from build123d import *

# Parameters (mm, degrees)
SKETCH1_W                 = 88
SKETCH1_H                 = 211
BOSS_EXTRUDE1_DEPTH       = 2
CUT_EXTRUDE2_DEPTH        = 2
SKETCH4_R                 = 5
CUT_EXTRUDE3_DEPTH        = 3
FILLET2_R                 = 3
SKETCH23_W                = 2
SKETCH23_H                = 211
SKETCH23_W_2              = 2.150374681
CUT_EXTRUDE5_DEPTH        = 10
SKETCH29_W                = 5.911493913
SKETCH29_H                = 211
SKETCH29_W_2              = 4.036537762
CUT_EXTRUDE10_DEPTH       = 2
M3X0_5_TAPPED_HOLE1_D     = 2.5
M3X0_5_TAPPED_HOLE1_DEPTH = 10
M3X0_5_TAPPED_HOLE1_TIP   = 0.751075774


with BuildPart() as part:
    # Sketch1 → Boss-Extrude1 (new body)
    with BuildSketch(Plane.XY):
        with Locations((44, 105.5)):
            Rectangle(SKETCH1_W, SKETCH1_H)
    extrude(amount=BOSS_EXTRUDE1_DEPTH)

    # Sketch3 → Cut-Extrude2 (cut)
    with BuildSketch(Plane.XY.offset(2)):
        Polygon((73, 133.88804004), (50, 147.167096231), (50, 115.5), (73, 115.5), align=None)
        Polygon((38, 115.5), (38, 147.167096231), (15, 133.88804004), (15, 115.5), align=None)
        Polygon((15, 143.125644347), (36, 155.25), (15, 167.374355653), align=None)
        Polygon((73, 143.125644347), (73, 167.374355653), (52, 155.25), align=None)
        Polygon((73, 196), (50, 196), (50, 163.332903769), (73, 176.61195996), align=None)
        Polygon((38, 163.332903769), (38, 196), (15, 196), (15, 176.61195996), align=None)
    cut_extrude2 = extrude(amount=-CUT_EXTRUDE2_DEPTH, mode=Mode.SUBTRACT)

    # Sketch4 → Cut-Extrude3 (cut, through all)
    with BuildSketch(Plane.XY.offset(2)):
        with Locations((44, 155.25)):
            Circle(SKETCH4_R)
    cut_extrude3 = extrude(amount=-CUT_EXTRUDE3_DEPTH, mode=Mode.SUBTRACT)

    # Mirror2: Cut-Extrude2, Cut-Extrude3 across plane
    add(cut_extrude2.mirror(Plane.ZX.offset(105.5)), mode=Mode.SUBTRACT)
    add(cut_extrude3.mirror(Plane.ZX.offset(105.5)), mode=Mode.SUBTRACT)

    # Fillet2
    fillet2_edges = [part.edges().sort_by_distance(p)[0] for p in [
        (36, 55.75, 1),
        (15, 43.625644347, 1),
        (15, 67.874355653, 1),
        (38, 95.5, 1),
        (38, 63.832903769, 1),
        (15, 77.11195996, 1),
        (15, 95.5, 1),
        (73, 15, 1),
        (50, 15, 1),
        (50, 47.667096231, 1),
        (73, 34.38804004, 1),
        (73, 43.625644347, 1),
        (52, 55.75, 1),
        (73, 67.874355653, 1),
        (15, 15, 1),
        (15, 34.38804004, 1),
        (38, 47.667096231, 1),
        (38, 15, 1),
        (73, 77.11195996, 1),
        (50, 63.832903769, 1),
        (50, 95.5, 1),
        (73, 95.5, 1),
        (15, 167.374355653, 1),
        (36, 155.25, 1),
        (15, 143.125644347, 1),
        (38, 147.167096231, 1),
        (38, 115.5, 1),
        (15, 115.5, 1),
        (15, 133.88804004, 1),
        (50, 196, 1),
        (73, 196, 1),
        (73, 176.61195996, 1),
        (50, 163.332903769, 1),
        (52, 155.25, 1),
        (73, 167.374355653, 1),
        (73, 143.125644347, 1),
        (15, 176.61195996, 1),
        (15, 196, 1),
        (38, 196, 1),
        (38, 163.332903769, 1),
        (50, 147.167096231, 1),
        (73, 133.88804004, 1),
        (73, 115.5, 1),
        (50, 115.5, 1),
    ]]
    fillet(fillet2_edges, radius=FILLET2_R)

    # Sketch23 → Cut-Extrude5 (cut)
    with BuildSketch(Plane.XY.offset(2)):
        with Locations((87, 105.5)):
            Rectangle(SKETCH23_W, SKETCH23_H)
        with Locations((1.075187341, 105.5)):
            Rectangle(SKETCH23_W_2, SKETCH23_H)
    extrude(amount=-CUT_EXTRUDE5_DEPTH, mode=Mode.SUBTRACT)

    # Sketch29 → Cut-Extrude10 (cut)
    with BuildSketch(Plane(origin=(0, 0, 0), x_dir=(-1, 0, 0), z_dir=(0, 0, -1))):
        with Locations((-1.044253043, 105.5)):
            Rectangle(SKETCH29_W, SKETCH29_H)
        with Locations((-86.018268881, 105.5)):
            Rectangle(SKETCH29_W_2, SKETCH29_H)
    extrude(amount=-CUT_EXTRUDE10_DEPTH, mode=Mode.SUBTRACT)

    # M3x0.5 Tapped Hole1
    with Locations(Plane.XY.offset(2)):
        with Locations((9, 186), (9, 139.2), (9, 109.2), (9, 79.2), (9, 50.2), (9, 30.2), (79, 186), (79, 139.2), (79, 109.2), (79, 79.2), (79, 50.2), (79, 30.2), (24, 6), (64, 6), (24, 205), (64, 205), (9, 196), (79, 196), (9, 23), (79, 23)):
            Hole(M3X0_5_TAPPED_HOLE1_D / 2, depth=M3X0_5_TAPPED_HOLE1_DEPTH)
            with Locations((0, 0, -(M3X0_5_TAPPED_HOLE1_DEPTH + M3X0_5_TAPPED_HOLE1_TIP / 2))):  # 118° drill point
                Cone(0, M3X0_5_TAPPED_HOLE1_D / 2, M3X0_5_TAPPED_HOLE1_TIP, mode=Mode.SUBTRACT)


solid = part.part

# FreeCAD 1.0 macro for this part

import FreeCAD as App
import Part
import Sketcher

V = App.Vector
Q = App.Units.Quantity


def edges_at(feature, points):
    """Names of the edges that pass closest to the given points."""
    edges = feature.Shape.Edges
    near = lambda p: min(range(len(edges)), key=lambda i: edges[i].distToShape(Part.Vertex(*p))[0])
    return sorted({f"Edge{near(p) + 1}" for p in points})

doc = App.newDocument("Part")
params = doc.addObject("Spreadsheet::Sheet", "Params")
for row, (alias, value) in enumerate([
    ("sketch1_width", "88 mm"),
    ("sketch1_height", "211 mm"),
    ("pad1_length", "2 mm"),
    ("sketch2_width", "23 mm"),
    ("pocket1_length", "2 mm"),
    ("sketch3_diameter", "10 mm"),
    ("fillet_radius", "3 mm"),
    ("sketch4_width", "2 mm"),
    ("sketch4_height", "211 mm"),
    ("pocket3_length", "10 mm"),
    ("sketch5_height", "211 mm"),
    ("pocket4_length", "2 mm"),
    ("sketch6_diameter", "2.5 mm"),
    ("hole_diameter", "2.5 mm"),
    ("hole_depth", "10 mm"),
], start=1):
    params.set(f"A{row}", alias)
    params.set(f"B{row}", "=" + value)
    params.setAlias(f"B{row}", alias)

body = doc.addObject("PartDesign::Body", "Body")

# Sketch on XY plane
sketch1 = doc.addObject("Sketcher::SketchObject", "Sketch")
body.addObject(sketch1)
sketch1.AttachmentSupport = (doc.XY_Plane, [""])
sketch1.MapMode = "FlatFace"
sketch1.addGeometry(Part.LineSegment(V(0, 211, 0), V(0, 0, 0)), False)
sketch1.addGeometry(Part.LineSegment(V(0, 0, 0), V(88, 0, 0)), False)
sketch1.addGeometry(Part.LineSegment(V(88, 0, 0), V(88, 211, 0)), False)
sketch1.addGeometry(Part.LineSegment(V(88, 211, 0), V(0, 211, 0)), False)
sketch1.addConstraint(Sketcher.Constraint("Coincident", 0, 2, 1, 1))
sketch1.addConstraint(Sketcher.Constraint("Coincident", 1, 2, 2, 1))
sketch1.addConstraint(Sketcher.Constraint("Coincident", 2, 2, 3, 1))
sketch1.addConstraint(Sketcher.Constraint("Coincident", 3, 2, 0, 1))
sketch1.addConstraint(Sketcher.Constraint("Vertical", 0))
sketch1.addConstraint(Sketcher.Constraint("Horizontal", 1))
sketch1.addConstraint(Sketcher.Constraint("Vertical", 2))
sketch1.addConstraint(Sketcher.Constraint("Horizontal", 3))
sketch1.addConstraint(Sketcher.Constraint("Coincident", 0, 2, -1, 1))
sketch1.addConstraint(Sketcher.Constraint("DistanceX", 1, 1, 1, 2, 88.0))
sketch1.addConstraint(Sketcher.Constraint("DistanceY", 0, 2, 0, 1, 211.0))
sketch1.setExpression("Constraints[9]", "Params.sketch1_width")
sketch1.setExpression("Constraints[10]", "Params.sketch1_height")
pad1 = doc.addObject("PartDesign::Pad", "Pad")
body.addObject(pad1)
pad1.Profile = sketch1
pad1.setExpression("Length", "Params.pad1_length")

# Sketch on XY plane
sketch2 = doc.addObject("Sketcher::SketchObject", "Sketch001")
body.addObject(sketch2)
sketch2.AttachmentSupport = (doc.XY_Plane, [""])
sketch2.MapMode = "FlatFace"
sketch2.AttachmentOffset = App.Placement(V(0, 0, 2), App.Rotation())
sketch2.addGeometry(Part.LineSegment(V(73, 134, 0), V(50, 147, 0)), False)
sketch2.addGeometry(Part.LineSegment(V(50, 147, 0), V(50, 116, 0)), False)
sketch2.addGeometry(Part.LineSegment(V(50, 116, 0), V(73, 116, 0)), False)
sketch2.addGeometry(Part.LineSegment(V(73, 116, 0), V(73, 134, 0)), False)
sketch2.addGeometry(Part.LineSegment(V(38, 116, 0), V(38, 147, 0)), False)
sketch2.addGeometry(Part.LineSegment(V(38, 147, 0), V(15, 134, 0)), False)
sketch2.addGeometry(Part.LineSegment(V(15, 134, 0), V(15, 116, 0)), False)
sketch2.addGeometry(Part.LineSegment(V(15, 116, 0), V(38, 116, 0)), False)
sketch2.addGeometry(Part.LineSegment(V(15, 143, 0), V(36, 155, 0)), False)
sketch2.addGeometry(Part.LineSegment(V(36, 155, 0), V(15, 167, 0)), False)
sketch2.addGeometry(Part.LineSegment(V(15, 167, 0), V(15, 143, 0)), False)
sketch2.addGeometry(Part.LineSegment(V(73, 143, 0), V(73, 167, 0)), False)
sketch2.addGeometry(Part.LineSegment(V(73, 167, 0), V(52, 155, 0)), False)
sketch2.addGeometry(Part.LineSegment(V(52, 155, 0), V(73, 143, 0)), False)
sketch2.addGeometry(Part.LineSegment(V(73, 196, 0), V(50, 196, 0)), False)
sketch2.addGeometry(Part.LineSegment(V(50, 196, 0), V(50, 163, 0)), False)
sketch2.addGeometry(Part.LineSegment(V(50, 163, 0), V(73, 177, 0)), False)
sketch2.addGeometry(Part.LineSegment(V(73, 177, 0), V(73, 196, 0)), False)
sketch2.addGeometry(Part.LineSegment(V(38, 163, 0), V(38, 196, 0)), False)
sketch2.addGeometry(Part.LineSegment(V(38, 196, 0), V(15, 196, 0)), False)
sketch2.addGeometry(Part.LineSegment(V(15, 196, 0), V(15, 177, 0)), False)
sketch2.addGeometry(Part.LineSegment(V(15, 177, 0), V(38, 163, 0)), False)
sketch2.addConstraint(Sketcher.Constraint("Coincident", 0, 2, 1, 1))
sketch2.addConstraint(Sketcher.Constraint("Coincident", 1, 2, 2, 1))
sketch2.addConstraint(Sketcher.Constraint("Coincident", 2, 2, 3, 1))
sketch2.addConstraint(Sketcher.Constraint("Coincident", 3, 2, 0, 1))
sketch2.addConstraint(Sketcher.Constraint("Coincident", 4, 2, 5, 1))
sketch2.addConstraint(Sketcher.Constraint("Coincident", 5, 2, 6, 1))
sketch2.addConstraint(Sketcher.Constraint("Coincident", 6, 2, 7, 1))
sketch2.addConstraint(Sketcher.Constraint("Coincident", 7, 2, 4, 1))
sketch2.addConstraint(Sketcher.Constraint("Coincident", 8, 2, 9, 1))
sketch2.addConstraint(Sketcher.Constraint("Coincident", 9, 2, 10, 1))
sketch2.addConstraint(Sketcher.Constraint("Coincident", 10, 2, 8, 1))
sketch2.addConstraint(Sketcher.Constraint("Coincident", 11, 2, 12, 1))
sketch2.addConstraint(Sketcher.Constraint("Coincident", 12, 2, 13, 1))
sketch2.addConstraint(Sketcher.Constraint("Coincident", 13, 2, 11, 1))
sketch2.addConstraint(Sketcher.Constraint("Coincident", 14, 2, 15, 1))
sketch2.addConstraint(Sketcher.Constraint("Coincident", 15, 2, 16, 1))
sketch2.addConstraint(Sketcher.Constraint("Coincident", 16, 2, 17, 1))
sketch2.addConstraint(Sketcher.Constraint("Coincident", 17, 2, 14, 1))
sketch2.addConstraint(Sketcher.Constraint("Coincident", 18, 2, 19, 1))
sketch2.addConstraint(Sketcher.Constraint("Coincident", 19, 2, 20, 1))
sketch2.addConstraint(Sketcher.Constraint("Coincident", 20, 2, 21, 1))
sketch2.addConstraint(Sketcher.Constraint("Coincident", 21, 2, 18, 1))
sketch2.addConstraint(Sketcher.Constraint("Vertical", 1))
sketch2.addConstraint(Sketcher.Constraint("Horizontal", 2))
sketch2.addConstraint(Sketcher.Constraint("Vertical", 3))
sketch2.addConstraint(Sketcher.Constraint("Vertical", 4))
sketch2.addConstraint(Sketcher.Constraint("Vertical", 6))
sketch2.addConstraint(Sketcher.Constraint("Horizontal", 7))
sketch2.addConstraint(Sketcher.Constraint("Vertical", 10))
sketch2.addConstraint(Sketcher.Constraint("Vertical", 11))
sketch2.addConstraint(Sketcher.Constraint("Horizontal", 14))
sketch2.addConstraint(Sketcher.Constraint("Vertical", 15))
sketch2.addConstraint(Sketcher.Constraint("Vertical", 17))
sketch2.addConstraint(Sketcher.Constraint("Vertical", 18))
sketch2.addConstraint(Sketcher.Constraint("Horizontal", 19))
sketch2.addConstraint(Sketcher.Constraint("Vertical", 20))
sketch2.addConstraint(Sketcher.Constraint("Parallel", 5, 8))
sketch2.addConstraint(Sketcher.Constraint("Parallel", 0, 9))
sketch2.addConstraint(Sketcher.Constraint("Parallel", 8, 12))
sketch2.addConstraint(Sketcher.Constraint("Parallel", 9, 13))
sketch2.addConstraint(Sketcher.Constraint("Parallel", 12, 16))
sketch2.addConstraint(Sketcher.Constraint("Parallel", 13, 21))
sketch2.addConstraint(Sketcher.Constraint("Horizontal", 0, 2, 4, 2))
sketch2.addConstraint(Sketcher.Constraint("Horizontal", 3, 2, 5, 2))
sketch2.addConstraint(Sketcher.Constraint("Horizontal", 2, 2, 6, 2))
sketch2.addConstraint(Sketcher.Constraint("Horizontal", 9, 2, 11, 2))
sketch2.addConstraint(Sketcher.Constraint("Horizontal", 8, 2, 12, 2))
sketch2.addConstraint(Sketcher.Constraint("Horizontal", 10, 2, 13, 2))
sketch2.addConstraint(Sketcher.Constraint("Horizontal", 17, 2, 18, 2))
sketch2.addConstraint(Sketcher.Constraint("Horizontal", 16, 2, 20, 2))
sketch2.addConstraint(Sketcher.Constraint("Horizontal", 15, 2, 21, 2))
sketch2.addConstraint(Sketcher.Constraint("Vertical", 6, 2, 9, 2))
sketch2.addConstraint(Sketcher.Constraint("Vertical", 3, 2, 11, 2))
sketch2.addConstraint(Sketcher.Constraint("Vertical", 1, 2, 14, 2))
sketch2.addConstraint(Sketcher.Constraint("Vertical", 13, 2, 16, 2))
sketch2.addConstraint(Sketcher.Constraint("Vertical", 7, 2, 18, 2))
sketch2.addConstraint(Sketcher.Constraint("DistanceX", 2, 1, 2, 2, 23.0))
sketch2.addConstraint(Sketcher.Constraint("Angle", 0, Q("150 deg")))
sketch2.addConstraint(Sketcher.Constraint("DistanceX", -1, 1, 0, 2, 50.0))
sketch2.addConstraint(Sketcher.Constraint("DistanceX", -1, 1, 4, 2, 38.0))
sketch2.addConstraint(Sketcher.Constraint("DistanceX", -1, 1, 8, 2, 36.0))
sketch2.addConstraint(Sketcher.Constraint("DistanceY", -1, 1, 14, 2, 196.0))
sketch2.addConstraint(Sketcher.Constraint("DistanceY", -1, 1, 1, 2, 115.5))
sketch2.addConstraint(Sketcher.Constraint("DistanceY", -1, 1, 8, 2, 155.25))
sketch2.addConstraint(Sketcher.Constraint("DistanceY", 3, 1, 3, 2, 18.38804))
sketch2.addConstraint(Sketcher.Constraint("DistanceY", 17, 1, 17, 2, 19.38804))
sketch2.setExpression("Constraints[56]", "Params.sketch2_width")
pocket1 = doc.addObject("PartDesign::Pocket", "Pocket")
body.addObject(pocket1)
pocket1.Profile = sketch2
pocket1.setExpression("Length", "Params.pocket1_length")

# Sketch on XY plane
sketch3 = doc.addObject("Sketcher::SketchObject", "Sketch002")
body.addObject(sketch3)
sketch3.AttachmentSupport = (doc.XY_Plane, [""])
sketch3.MapMode = "FlatFace"
sketch3.AttachmentOffset = App.Placement(V(0, 0, 2), App.Rotation())
sketch3.addGeometry(Part.Circle(V(44, 155, 0), V(0, 0, 1), 5), False)
sketch3.addConstraint(Sketcher.Constraint("Diameter", 0, 10.0))
sketch3.addConstraint(Sketcher.Constraint("DistanceX", -1, 1, 0, 3, 44.0))
sketch3.addConstraint(Sketcher.Constraint("DistanceY", -1, 1, 0, 3, 155.25))
sketch3.setExpression("Constraints[0]", "Params.sketch3_diameter")
pocket2 = doc.addObject("PartDesign::Pocket", "Pocket001")
body.addObject(pocket2)
pocket2.Profile = sketch3
pocket2.Type = "ThroughAll"
doc.recompute()

datumplane = doc.addObject("PartDesign::Plane", "DatumPlane")
body.addObject(datumplane)
datumplane.AttachmentSupport = (doc.XZ_Plane, [""])
datumplane.MapMode = "FlatFace"
datumplane.AttachmentOffset = App.Placement(V(0, 0, -105.5), App.Rotation())
mirrored = doc.addObject("PartDesign::Mirrored", "Mirrored")
body.addObject(mirrored)
mirrored.Originals = [pocket1, pocket2]
mirrored.MirrorPlane = (datumplane, [""])
body.Tip = mirrored
doc.recompute()

fillet = doc.addObject("PartDesign::Fillet", "Fillet")
body.addObject(fillet)
fillet.Base = (mirrored, edges_at(mirrored, [
    (36, 55.75, 1),
    (15, 43.626, 1),
    (15, 67.874, 1),
    (38, 95.5, 1),
    (38, 63.833, 1),
    (15, 77.112, 1),
    (15, 95.5, 1),
    (73, 15, 1),
    (50, 15, 1),
    (50, 47.667, 1),
    (73, 34.388, 1),
    (73, 43.626, 1),
    (52, 55.75, 1),
    (73, 67.874, 1),
    (15, 15, 1),
    (15, 34.388, 1),
    (38, 47.667, 1),
    (38, 15, 1),
    (73, 77.112, 1),
    (50, 63.833, 1),
    (50, 95.5, 1),
    (73, 95.5, 1),
    (15, 167.374, 1),
    (36, 155.25, 1),
    (15, 143.126, 1),
    (38, 147.167, 1),
    (38, 115.5, 1),
    (15, 115.5, 1),
    (15, 133.888, 1),
    (50, 196, 1),
    (73, 196, 1),
    (73, 176.612, 1),
    (50, 163.333, 1),
    (52, 155.25, 1),
    (73, 167.374, 1),
    (73, 143.126, 1),
    (15, 176.612, 1),
    (15, 196, 1),
    (38, 196, 1),
    (38, 163.333, 1),
    (50, 147.167, 1),
    (73, 133.888, 1),
    (73, 115.5, 1),
    (50, 115.5, 1),
]))
fillet.setExpression("Radius", "Params.fillet_radius")

# Sketch on XY plane
sketch4 = doc.addObject("Sketcher::SketchObject", "Sketch003")
body.addObject(sketch4)
sketch4.AttachmentSupport = (doc.XY_Plane, [""])
sketch4.MapMode = "FlatFace"
sketch4.AttachmentOffset = App.Placement(V(0, 0, 2), App.Rotation())
sketch4.addGeometry(Part.LineSegment(V(86, 211, 0), V(86, 0, 0)), False)
sketch4.addGeometry(Part.LineSegment(V(86, 0, 0), V(88, 0, 0)), False)
sketch4.addGeometry(Part.LineSegment(V(88, 0, 0), V(88, 211, 0)), False)
sketch4.addGeometry(Part.LineSegment(V(88, 211, 0), V(86, 211, 0)), False)
sketch4.addGeometry(Part.LineSegment(V(0, 211, 0), V(0, 0, 0)), False)
sketch4.addGeometry(Part.LineSegment(V(0, 0, 0), V(2.2, 0, 0)), False)
sketch4.addGeometry(Part.LineSegment(V(2.2, 0, 0), V(2.2, 211, 0)), False)
sketch4.addGeometry(Part.LineSegment(V(2.2, 211, 0), V(0, 211, 0)), False)
sketch4.addConstraint(Sketcher.Constraint("Coincident", 0, 2, 1, 1))
sketch4.addConstraint(Sketcher.Constraint("Coincident", 1, 2, 2, 1))
sketch4.addConstraint(Sketcher.Constraint("Coincident", 2, 2, 3, 1))
sketch4.addConstraint(Sketcher.Constraint("Coincident", 3, 2, 0, 1))
sketch4.addConstraint(Sketcher.Constraint("Coincident", 4, 2, 5, 1))
sketch4.addConstraint(Sketcher.Constraint("Coincident", 5, 2, 6, 1))
sketch4.addConstraint(Sketcher.Constraint("Coincident", 6, 2, 7, 1))
sketch4.addConstraint(Sketcher.Constraint("Coincident", 7, 2, 4, 1))
sketch4.addConstraint(Sketcher.Constraint("Vertical", 0))
sketch4.addConstraint(Sketcher.Constraint("Horizontal", 1))
sketch4.addConstraint(Sketcher.Constraint("Vertical", 2))
sketch4.addConstraint(Sketcher.Constraint("Horizontal", 3))
sketch4.addConstraint(Sketcher.Constraint("Vertical", 4))
sketch4.addConstraint(Sketcher.Constraint("Horizontal", 5))
sketch4.addConstraint(Sketcher.Constraint("Vertical", 6))
sketch4.addConstraint(Sketcher.Constraint("Horizontal", 7))
sketch4.addConstraint(Sketcher.Constraint("Coincident", 4, 2, -1, 1))
sketch4.addConstraint(Sketcher.Constraint("PointOnObject", 0, 2, -1))
sketch4.addConstraint(Sketcher.Constraint("Horizontal", 3, 2, 6, 2))
sketch4.addConstraint(Sketcher.Constraint("DistanceX", 1, 1, 1, 2, 2.0))
sketch4.addConstraint(Sketcher.Constraint("DistanceY", 0, 2, 0, 1, 211.0))
sketch4.addConstraint(Sketcher.Constraint("DistanceX", -1, 1, 0, 2, 86.0))
sketch4.addConstraint(Sketcher.Constraint("DistanceX", 5, 1, 5, 2, 2.150375))
sketch4.setExpression("Constraints[19]", "Params.sketch4_width")
sketch4.setExpression("Constraints[20]", "Params.sketch4_height")
pocket3 = doc.addObject("PartDesign::Pocket", "Pocket002")
body.addObject(pocket3)
pocket3.Profile = sketch4
pocket3.setExpression("Length", "Params.pocket3_length")

# Sketch on XY plane
sketch5 = doc.addObject("Sketcher::SketchObject", "Sketch004")
body.addObject(sketch5)
sketch5.AttachmentSupport = (doc.XY_Plane, [""])
sketch5.MapMode = "FlatFace"
sketch5.addGeometry(Part.LineSegment(V(4, 211, 0), V(4, 0, 0)), False)
sketch5.addGeometry(Part.LineSegment(V(4, 0, 0), V(-1.9, 0, 0)), False)
sketch5.addGeometry(Part.LineSegment(V(-1.9, 0, 0), V(-1.9, 211, 0)), False)
sketch5.addGeometry(Part.LineSegment(V(-1.9, 211, 0), V(4, 211, 0)), False)
sketch5.addGeometry(Part.LineSegment(V(88, 211, 0), V(88, 0, 0)), False)
sketch5.addGeometry(Part.LineSegment(V(88, 0, 0), V(84, 0, 0)), False)
sketch5.addGeometry(Part.LineSegment(V(84, 0, 0), V(84, 211, 0)), False)
sketch5.addGeometry(Part.LineSegment(V(84, 211, 0), V(88, 211, 0)), False)
sketch5.addConstraint(Sketcher.Constraint("Coincident", 0, 2, 1, 1))
sketch5.addConstraint(Sketcher.Constraint("Coincident", 1, 2, 2, 1))
sketch5.addConstraint(Sketcher.Constraint("Coincident", 2, 2, 3, 1))
sketch5.addConstraint(Sketcher.Constraint("Coincident", 3, 2, 0, 1))
sketch5.addConstraint(Sketcher.Constraint("Coincident", 4, 2, 5, 1))
sketch5.addConstraint(Sketcher.Constraint("Coincident", 5, 2, 6, 1))
sketch5.addConstraint(Sketcher.Constraint("Coincident", 6, 2, 7, 1))
sketch5.addConstraint(Sketcher.Constraint("Coincident", 7, 2, 4, 1))
sketch5.addConstraint(Sketcher.Constraint("Vertical", 0))
sketch5.addConstraint(Sketcher.Constraint("Horizontal", 1))
sketch5.addConstraint(Sketcher.Constraint("Vertical", 2))
sketch5.addConstraint(Sketcher.Constraint("Horizontal", 3))
sketch5.addConstraint(Sketcher.Constraint("Vertical", 4))
sketch5.addConstraint(Sketcher.Constraint("Horizontal", 5))
sketch5.addConstraint(Sketcher.Constraint("Vertical", 6))
sketch5.addConstraint(Sketcher.Constraint("Horizontal", 7))
sketch5.addConstraint(Sketcher.Constraint("PointOnObject", 0, 2, -1))
sketch5.addConstraint(Sketcher.Constraint("PointOnObject", 4, 2, -1))
sketch5.addConstraint(Sketcher.Constraint("Horizontal", 3, 2, 6, 2))
sketch5.addConstraint(Sketcher.Constraint("DistanceY", 0, 2, 0, 1, 211.0))
sketch5.addConstraint(Sketcher.Constraint("DistanceX", -1, 1, 0, 2, 4.0))
sketch5.addConstraint(Sketcher.Constraint("DistanceX", -1, 1, 5, 2, 84.0))
sketch5.addConstraint(Sketcher.Constraint("DistanceX", 1, 2, 1, 1, 5.911494))
sketch5.addConstraint(Sketcher.Constraint("DistanceX", 5, 2, 5, 1, 4.036538))
sketch5.setExpression("Constraints[19]", "Params.sketch5_height")
pocket4 = doc.addObject("PartDesign::Pocket", "Pocket003")
body.addObject(pocket4)
pocket4.Profile = sketch5
pocket4.setExpression("Length", "Params.pocket4_length")
pocket4.Reversed = True

# Sketch on XY plane
sketch6 = doc.addObject("Sketcher::SketchObject", "Sketch005")
body.addObject(sketch6)
sketch6.AttachmentSupport = (doc.XY_Plane, [""])
sketch6.MapMode = "FlatFace"
sketch6.AttachmentOffset = App.Placement(V(0, 0, 2), App.Rotation())
sketch6.addGeometry(Part.Circle(V(9, 186, 0), V(0, 0, 1), 1.2), False)
sketch6.addGeometry(Part.Circle(V(9, 139.2, 0), V(0, 0, 1), 1.2), False)
sketch6.addGeometry(Part.Circle(V(9, 109.2, 0), V(0, 0, 1), 1.2), False)
sketch6.addGeometry(Part.Circle(V(9, 79.2, 0), V(0, 0, 1), 1.2), False)
sketch6.addGeometry(Part.Circle(V(9, 50.2, 0), V(0, 0, 1), 1.2), False)
sketch6.addGeometry(Part.Circle(V(9, 30.2, 0), V(0, 0, 1), 1.2), False)
sketch6.addGeometry(Part.Circle(V(79, 186, 0), V(0, 0, 1), 1.2), False)
sketch6.addGeometry(Part.Circle(V(79, 139.2, 0), V(0, 0, 1), 1.2), False)
sketch6.addGeometry(Part.Circle(V(79, 109.2, 0), V(0, 0, 1), 1.2), False)
sketch6.addGeometry(Part.Circle(V(79, 79.2, 0), V(0, 0, 1), 1.2), False)
sketch6.addGeometry(Part.Circle(V(79, 50.2, 0), V(0, 0, 1), 1.2), False)
sketch6.addGeometry(Part.Circle(V(79, 30.2, 0), V(0, 0, 1), 1.2), False)
sketch6.addGeometry(Part.Circle(V(24, 6, 0), V(0, 0, 1), 1.2), False)
sketch6.addGeometry(Part.Circle(V(64, 6, 0), V(0, 0, 1), 1.2), False)
sketch6.addGeometry(Part.Circle(V(24, 205, 0), V(0, 0, 1), 1.2), False)
sketch6.addGeometry(Part.Circle(V(64, 205, 0), V(0, 0, 1), 1.2), False)
sketch6.addGeometry(Part.Circle(V(9, 196, 0), V(0, 0, 1), 1.2), False)
sketch6.addGeometry(Part.Circle(V(79, 196, 0), V(0, 0, 1), 1.2), False)
sketch6.addGeometry(Part.Circle(V(9, 23, 0), V(0, 0, 1), 1.2), False)
sketch6.addGeometry(Part.Circle(V(79, 23, 0), V(0, 0, 1), 1.2), False)
sketch6.addConstraint(Sketcher.Constraint("Equal", 0, 1))
sketch6.addConstraint(Sketcher.Constraint("Equal", 1, 2))
sketch6.addConstraint(Sketcher.Constraint("Equal", 2, 3))
sketch6.addConstraint(Sketcher.Constraint("Equal", 3, 4))
sketch6.addConstraint(Sketcher.Constraint("Equal", 4, 5))
sketch6.addConstraint(Sketcher.Constraint("Equal", 5, 6))
sketch6.addConstraint(Sketcher.Constraint("Equal", 6, 7))
sketch6.addConstraint(Sketcher.Constraint("Equal", 7, 8))
sketch6.addConstraint(Sketcher.Constraint("Equal", 8, 9))
sketch6.addConstraint(Sketcher.Constraint("Equal", 9, 10))
sketch6.addConstraint(Sketcher.Constraint("Equal", 10, 11))
sketch6.addConstraint(Sketcher.Constraint("Equal", 11, 12))
sketch6.addConstraint(Sketcher.Constraint("Equal", 12, 13))
sketch6.addConstraint(Sketcher.Constraint("Equal", 13, 14))
sketch6.addConstraint(Sketcher.Constraint("Equal", 14, 15))
sketch6.addConstraint(Sketcher.Constraint("Equal", 15, 16))
sketch6.addConstraint(Sketcher.Constraint("Equal", 16, 17))
sketch6.addConstraint(Sketcher.Constraint("Equal", 17, 18))
sketch6.addConstraint(Sketcher.Constraint("Equal", 18, 19))
sketch6.addConstraint(Sketcher.Constraint("Horizontal", 0, 3, 6, 3))
sketch6.addConstraint(Sketcher.Constraint("Horizontal", 1, 3, 7, 3))
sketch6.addConstraint(Sketcher.Constraint("Horizontal", 2, 3, 8, 3))
sketch6.addConstraint(Sketcher.Constraint("Horizontal", 3, 3, 9, 3))
sketch6.addConstraint(Sketcher.Constraint("Horizontal", 4, 3, 10, 3))
sketch6.addConstraint(Sketcher.Constraint("Horizontal", 5, 3, 11, 3))
sketch6.addConstraint(Sketcher.Constraint("Horizontal", 12, 3, 13, 3))
sketch6.addConstraint(Sketcher.Constraint("Horizontal", 14, 3, 15, 3))
sketch6.addConstraint(Sketcher.Constraint("Horizontal", 16, 3, 17, 3))
sketch6.addConstraint(Sketcher.Constraint("Horizontal", 18, 3, 19, 3))
sketch6.addConstraint(Sketcher.Constraint("Vertical", 0, 3, 1, 3))
sketch6.addConstraint(Sketcher.Constraint("Vertical", 1, 3, 2, 3))
sketch6.addConstraint(Sketcher.Constraint("Vertical", 2, 3, 3, 3))
sketch6.addConstraint(Sketcher.Constraint("Vertical", 3, 3, 4, 3))
sketch6.addConstraint(Sketcher.Constraint("Vertical", 4, 3, 5, 3))
sketch6.addConstraint(Sketcher.Constraint("Vertical", 6, 3, 7, 3))
sketch6.addConstraint(Sketcher.Constraint("Vertical", 7, 3, 8, 3))
sketch6.addConstraint(Sketcher.Constraint("Vertical", 8, 3, 9, 3))
sketch6.addConstraint(Sketcher.Constraint("Vertical", 9, 3, 10, 3))
sketch6.addConstraint(Sketcher.Constraint("Vertical", 10, 3, 11, 3))
sketch6.addConstraint(Sketcher.Constraint("Vertical", 12, 3, 14, 3))
sketch6.addConstraint(Sketcher.Constraint("Vertical", 13, 3, 15, 3))
sketch6.addConstraint(Sketcher.Constraint("Vertical", 5, 3, 16, 3))
sketch6.addConstraint(Sketcher.Constraint("Vertical", 11, 3, 17, 3))
sketch6.addConstraint(Sketcher.Constraint("Vertical", 16, 3, 18, 3))
sketch6.addConstraint(Sketcher.Constraint("Vertical", 17, 3, 19, 3))
sketch6.addConstraint(Sketcher.Constraint("Diameter", 0, 2.5))
sketch6.addConstraint(Sketcher.Constraint("DistanceX", -1, 1, 0, 3, 9.0))
sketch6.addConstraint(Sketcher.Constraint("DistanceY", -1, 1, 0, 3, 186.0))
sketch6.addConstraint(Sketcher.Constraint("DistanceX", -1, 1, 6, 3, 79.0))
sketch6.addConstraint(Sketcher.Constraint("DistanceX", -1, 1, 12, 3, 24.0))
sketch6.addConstraint(Sketcher.Constraint("DistanceY", -1, 1, 12, 3, 6.0))
sketch6.addConstraint(Sketcher.Constraint("DistanceX", -1, 1, 13, 3, 64.0))
sketch6.addConstraint(Sketcher.Constraint("DistanceY", -1, 1, 14, 3, 205.0))
sketch6.addConstraint(Sketcher.Constraint("DistanceY", -1, 1, 16, 3, 196.0))
sketch6.addConstraint(Sketcher.Constraint("DistanceY", -1, 1, 18, 3, 23.0))
sketch6.addConstraint(Sketcher.Constraint("DistanceY", 2, 3, 1, 3, 30.0))
sketch6.addConstraint(Sketcher.Constraint("DistanceY", 3, 3, 2, 3, 30.0))
sketch6.addConstraint(Sketcher.Constraint("DistanceY", 4, 3, 3, 3, 29.0))
sketch6.addConstraint(Sketcher.Constraint("DistanceY", 5, 3, 4, 3, 20.0))
sketch6.addConstraint(Sketcher.Constraint("DistanceY", -1, 1, 1, 3, 139.2))
sketch6.setExpression("Constraints[45]", "Params.sketch6_diameter")
doc.recompute()
hole = doc.addObject("PartDesign::Hole", "Hole")
body.addObject(hole)
hole.Profile = sketch6
hole.ThreadType = "None"
hole.setExpression("Diameter", "Params.hole_diameter")
hole.DepthType = "Dimension"
hole.setExpression("Depth", "Params.hole_depth")
hole.DrillPoint = "Angled"
hole.DrillPointAngle = 118

doc.recompute()
